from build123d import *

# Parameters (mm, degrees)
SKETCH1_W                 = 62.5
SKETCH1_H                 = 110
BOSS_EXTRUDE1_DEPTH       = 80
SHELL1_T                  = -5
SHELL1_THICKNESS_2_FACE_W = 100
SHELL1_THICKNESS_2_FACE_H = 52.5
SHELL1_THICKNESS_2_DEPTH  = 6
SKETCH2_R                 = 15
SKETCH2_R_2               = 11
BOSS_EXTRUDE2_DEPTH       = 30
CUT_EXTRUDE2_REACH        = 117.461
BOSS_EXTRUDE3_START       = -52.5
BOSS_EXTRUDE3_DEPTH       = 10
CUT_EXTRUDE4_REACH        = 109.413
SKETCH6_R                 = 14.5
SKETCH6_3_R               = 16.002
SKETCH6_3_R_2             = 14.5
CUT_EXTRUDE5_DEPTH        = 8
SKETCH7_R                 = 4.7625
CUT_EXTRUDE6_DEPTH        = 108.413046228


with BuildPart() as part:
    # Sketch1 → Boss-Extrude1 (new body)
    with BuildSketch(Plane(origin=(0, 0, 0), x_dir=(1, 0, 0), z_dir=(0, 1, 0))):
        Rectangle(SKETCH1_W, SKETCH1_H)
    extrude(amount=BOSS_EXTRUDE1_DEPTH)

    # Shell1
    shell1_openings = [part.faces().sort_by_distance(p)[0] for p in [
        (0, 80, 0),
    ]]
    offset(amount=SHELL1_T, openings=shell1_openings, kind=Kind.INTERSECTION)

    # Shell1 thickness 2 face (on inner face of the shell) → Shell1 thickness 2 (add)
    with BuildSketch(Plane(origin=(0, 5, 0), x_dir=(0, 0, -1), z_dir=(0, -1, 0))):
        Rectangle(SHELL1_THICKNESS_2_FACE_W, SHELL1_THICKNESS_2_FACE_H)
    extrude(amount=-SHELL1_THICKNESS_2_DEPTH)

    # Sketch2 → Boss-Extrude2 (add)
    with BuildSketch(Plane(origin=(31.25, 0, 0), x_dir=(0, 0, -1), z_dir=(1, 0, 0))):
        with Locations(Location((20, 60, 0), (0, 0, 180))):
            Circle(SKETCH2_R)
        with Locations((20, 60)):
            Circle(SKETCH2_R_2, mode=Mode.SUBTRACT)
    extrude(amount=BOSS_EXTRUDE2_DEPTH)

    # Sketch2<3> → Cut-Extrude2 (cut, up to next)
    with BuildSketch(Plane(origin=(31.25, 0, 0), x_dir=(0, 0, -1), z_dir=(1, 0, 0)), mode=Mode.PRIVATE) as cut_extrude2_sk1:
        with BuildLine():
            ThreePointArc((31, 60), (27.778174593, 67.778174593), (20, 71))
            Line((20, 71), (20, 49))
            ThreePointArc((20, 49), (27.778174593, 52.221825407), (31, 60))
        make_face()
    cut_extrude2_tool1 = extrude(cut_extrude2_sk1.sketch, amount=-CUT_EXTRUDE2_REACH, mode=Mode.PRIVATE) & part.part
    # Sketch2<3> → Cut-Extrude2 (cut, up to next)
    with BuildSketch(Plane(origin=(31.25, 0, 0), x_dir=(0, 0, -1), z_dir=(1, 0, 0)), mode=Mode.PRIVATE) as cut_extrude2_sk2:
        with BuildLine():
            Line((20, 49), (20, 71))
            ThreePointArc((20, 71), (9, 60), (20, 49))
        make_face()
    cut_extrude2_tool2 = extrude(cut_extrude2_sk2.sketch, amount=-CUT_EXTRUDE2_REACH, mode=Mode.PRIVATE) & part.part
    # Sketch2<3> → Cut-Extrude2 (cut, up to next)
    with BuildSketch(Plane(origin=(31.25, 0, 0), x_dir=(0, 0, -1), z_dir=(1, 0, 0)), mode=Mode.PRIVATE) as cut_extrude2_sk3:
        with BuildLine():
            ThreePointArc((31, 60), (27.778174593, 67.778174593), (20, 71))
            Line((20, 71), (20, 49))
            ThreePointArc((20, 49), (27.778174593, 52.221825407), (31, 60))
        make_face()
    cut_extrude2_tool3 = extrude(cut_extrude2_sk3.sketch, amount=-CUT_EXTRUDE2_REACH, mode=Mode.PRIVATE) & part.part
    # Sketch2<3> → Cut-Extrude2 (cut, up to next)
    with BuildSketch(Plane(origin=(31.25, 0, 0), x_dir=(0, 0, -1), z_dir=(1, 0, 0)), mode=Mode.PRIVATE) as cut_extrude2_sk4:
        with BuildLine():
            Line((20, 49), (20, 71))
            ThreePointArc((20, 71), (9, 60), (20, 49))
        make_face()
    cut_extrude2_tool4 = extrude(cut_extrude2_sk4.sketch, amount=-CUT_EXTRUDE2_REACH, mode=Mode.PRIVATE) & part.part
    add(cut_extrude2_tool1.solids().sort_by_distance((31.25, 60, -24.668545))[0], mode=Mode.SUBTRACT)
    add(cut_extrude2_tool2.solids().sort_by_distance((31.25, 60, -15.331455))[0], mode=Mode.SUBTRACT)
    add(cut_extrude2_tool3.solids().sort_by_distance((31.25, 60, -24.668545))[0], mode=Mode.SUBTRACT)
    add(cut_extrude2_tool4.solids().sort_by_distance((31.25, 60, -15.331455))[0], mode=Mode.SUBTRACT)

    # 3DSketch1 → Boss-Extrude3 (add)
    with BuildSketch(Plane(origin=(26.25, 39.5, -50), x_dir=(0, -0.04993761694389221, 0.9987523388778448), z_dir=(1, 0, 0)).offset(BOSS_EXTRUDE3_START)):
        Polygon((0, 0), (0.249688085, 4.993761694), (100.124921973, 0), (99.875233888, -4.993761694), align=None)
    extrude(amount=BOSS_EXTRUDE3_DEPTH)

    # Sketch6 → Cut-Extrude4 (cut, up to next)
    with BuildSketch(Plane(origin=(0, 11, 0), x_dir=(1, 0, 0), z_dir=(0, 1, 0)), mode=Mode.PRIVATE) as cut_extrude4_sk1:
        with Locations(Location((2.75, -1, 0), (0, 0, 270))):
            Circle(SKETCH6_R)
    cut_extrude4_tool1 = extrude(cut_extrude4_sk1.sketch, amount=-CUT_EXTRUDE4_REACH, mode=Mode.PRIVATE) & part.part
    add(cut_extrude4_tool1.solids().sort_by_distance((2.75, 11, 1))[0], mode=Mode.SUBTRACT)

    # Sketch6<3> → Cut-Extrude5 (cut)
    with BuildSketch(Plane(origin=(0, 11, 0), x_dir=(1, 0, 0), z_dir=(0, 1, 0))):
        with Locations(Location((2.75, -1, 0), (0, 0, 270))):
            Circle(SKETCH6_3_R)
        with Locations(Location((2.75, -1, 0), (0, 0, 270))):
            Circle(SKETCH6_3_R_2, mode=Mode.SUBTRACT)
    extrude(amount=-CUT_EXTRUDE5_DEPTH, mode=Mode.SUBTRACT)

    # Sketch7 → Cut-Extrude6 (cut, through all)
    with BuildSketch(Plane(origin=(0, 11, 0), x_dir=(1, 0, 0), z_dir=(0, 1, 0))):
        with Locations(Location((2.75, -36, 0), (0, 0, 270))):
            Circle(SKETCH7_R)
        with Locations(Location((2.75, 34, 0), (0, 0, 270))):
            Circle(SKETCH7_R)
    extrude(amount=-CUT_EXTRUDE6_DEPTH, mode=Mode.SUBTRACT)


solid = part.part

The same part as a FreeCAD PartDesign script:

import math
import FreeCAD as App
import Part
import Sketcher

V = App.Vector


def faces_at(feature, points):
    """Names of the faces that lie closest to the given points."""
    faces = feature.Shape.Faces
    near = lambda p: min(range(len(faces)), key=lambda i: faces[i].distToShape(Part.Vertex(*p))[0])
    return sorted({f"Face{near(p) + 1}" for p in points})


def add_polygon(sketch, points):
    """Adds a closed chain of lines whose ends are joined by coincident constraints."""
    first, n = sketch.GeometryCount, len(points)
    for a, b in zip(points, points[1:] + points[:1]):
        sketch.addGeometry(Part.LineSegment(App.Vector(*a, 0), App.Vector(*b, 0)), False)
    for i in range(n):
        sketch.addConstraint(Sketcher.Constraint("Coincident", first + i, 2, first + (i + 1) % n, 1))

doc = App.newDocument("Part")
body = doc.addObject("PartDesign::Body", "Body")

# Sketch on XZ plane
sketch1 = body.newObject("Sketcher::SketchObject", "Sketch")
sketch1.AttachmentSupport = (doc.getObject("XZ_Plane"), [""])
sketch1.MapMode = "FlatFace"
add_polygon(sketch1, [(-31, -55), (-31, 55), (31, 55), (31, -55)])  # lines 0-3
sketch1.addConstraint([
    Sketcher.Constraint("Vertical", 0),
    Sketcher.Constraint("Horizontal", 1),
    Sketcher.Constraint("Vertical", 2),
    Sketcher.Constraint("Horizontal", 3),
    Sketcher.Constraint("Symmetric", 0, 2, 2, 2, -1, 1),
    Sketcher.Constraint("DistanceY", 0, 1, 0, 2, 110.0),
    Sketcher.Constraint("DistanceX", 1, 1, 1, 2, 62.5),
])
pad1 = body.newObject("PartDesign::Pad", "Pad")
pad1.Profile = sketch1
pad1.Length = 80
pad1.Reversed = True
doc.recompute()

thickness = body.newObject("PartDesign::Thickness", "Thickness")
thickness.Base = (pad1, faces_at(pad1, [(0, 80, 0)]))
thickness.Value = 5
thickness.Reversed = True
thickness.Join = "Intersection"

# Sketch on XZ plane
sketch2 = body.newObject("Sketcher::SketchObject", "Sketch001")
sketch2.AttachmentSupport = (doc.getObject("XZ_Plane"), [""])
sketch2.MapMode = "FlatFace"
sketch2.AttachmentOffset = App.Placement(V(0, 0, -5), App.Rotation())
add_polygon(sketch2, [(26, 50), (-26, 50), (-26, -50), (26, -50)])  # lines 0-3
sketch2.addConstraint([
    Sketcher.Constraint("Horizontal", 0),
    Sketcher.Constraint("Vertical", 1),
    Sketcher.Constraint("Horizontal", 2),
    Sketcher.Constraint("Vertical", 3),
    Sketcher.Constraint("Symmetric", 0, 2, 2, 2, -1, 1),
    Sketcher.Constraint("DistanceY", 1, 2, 1, 1, 100.0),
    Sketcher.Constraint("DistanceX", 0, 2, 0, 1, 52.5),
])
pad2 = body.newObject("PartDesign::Pad", "Pad001")
pad2.Profile = sketch2
pad2.Length = 6
pad2.Reversed = True

# Sketch on YZ plane
sketch3 = body.newObject("Sketcher::SketchObject", "Sketch002")
sketch3.AttachmentSupport = (doc.getObject("YZ_Plane"), [""])
sketch3.MapMode = "FlatFace"
sketch3.AttachmentOffset = App.Placement(V(0, 0, 31.25), App.Rotation())
sketch3.addGeometry([
    Part.Circle(V(60, -20, 0), V(0, 0, 1), 15),
    Part.Circle(V(60, -20, 0), V(0, 0, 1), 11),
], False)
sketch3.addConstraint([
    Sketcher.Constraint("Coincident", 1, 3, 0, 3),
    Sketcher.Constraint("Diameter", 0, 30.0),
    Sketcher.Constraint("Diameter", 1, 22.0),
    Sketcher.Constraint("DistanceX", -1, 1, 0, 3, 60.0),
    Sketcher.Constraint("DistanceY", 0, 3, -1, 1, 20.0),
])
pad3 = body.newObject("PartDesign::Pad", "Pad002")
pad3.Profile = sketch3
pad3.Length = 30

# Sketch on YZ plane
sketch4 = body.newObject("Sketcher::SketchObject", "Sketch003")
sketch4.AttachmentSupport = (doc.getObject("YZ_Plane"), [""])
sketch4.MapMode = "FlatFace"
sketch4.AttachmentOffset = App.Placement(V(0, 0, 31.25), App.Rotation())
sketch4.addGeometry([
    Part.ArcOfCircle(Part.Circle(V(60, -20, 0), V(0, 0, 1), 11), math.radians(-90), math.radians(0)),
    Part.LineSegment(V(71, -20, 0), V(49, -20, 0)),
    Part.ArcOfCircle(Part.Circle(V(60, -20, 0), V(0, 0, 1), 11), math.radians(180), math.radians(270)),
], False)
sketch4.addConstraint([
    Sketcher.Constraint("Coincident", 0, 2, 1, 1),
    Sketcher.Constraint("Coincident", 1, 2, 2, 1),
    Sketcher.Constraint("Tangent", 2, 2, 0, 1),
    Sketcher.Constraint("Horizontal", 1),
    Sketcher.Constraint("Equal", 0, 2),
    Sketcher.Constraint("Horizontal", 2, 3, 0, 2),
    Sketcher.Constraint("Vertical", 0, 3, 2, 2),
    Sketcher.Constraint("Radius", 0, 11.0),
    Sketcher.Constraint("DistanceX", -1, 1, 0, 3, 60.0),
    Sketcher.Constraint("DistanceY", 0, 3, -1, 1, 20.0),
])
pocket1 = body.newObject("PartDesign::Pocket", "Pocket")
pocket1.Profile = sketch4
pocket1.Type = "UpToFirst"

# Sketch on YZ plane
sketch5 = body.newObject("Sketcher::SketchObject", "Sketch004")
sketch5.AttachmentSupport = (doc.getObject("YZ_Plane"), [""])
sketch5.MapMode = "FlatFace"
sketch5.AttachmentOffset = App.Placement(V(0, 0, 31.25), App.Rotation())
sketch5.addGeometry([
    Part.LineSegment(V(49, -20, 0), V(71, -20, 0)),
    Part.ArcOfCircle(Part.Circle(V(60, -20, 0), V(0, 0, 1), 11), math.radians(0), math.radians(180)),
], False)
sketch5.addConstraint([
    Sketcher.Constraint("Coincident", 0, 1, 1, 2),
    Sketcher.Constraint("Coincident", 1, 1, 0, 2),
    Sketcher.Constraint("Horizontal", 0),
    Sketcher.Constraint("Horizontal", 1, 3, 0, 1),
    Sketcher.Constraint("Radius", 1, 11.0),
    Sketcher.Constraint("DistanceX", -1, 1, 1, 3, 60.0),
    Sketcher.Constraint("DistanceY", 1, 3, -1, 1, 20.0),
])
pocket2 = body.newObject("PartDesign::Pocket", "Pocket001")
pocket2.Profile = sketch5
pocket2.Type = "UpToFirst"

# Sketch on YZ plane
sketch6 = body.newObject("Sketcher::SketchObject", "Sketch005")
sketch6.AttachmentSupport = (doc.getObject("YZ_Plane"), [""])
sketch6.MapMode = "FlatFace"
sketch6.AttachmentOffset = App.Placement(V(0, 0, 31.25), App.Rotation())
sketch6.addGeometry([
    Part.ArcOfCircle(Part.Circle(V(60, -20, 0), V(0, 0, 1), 11), math.radians(-90), math.radians(0)),
    Part.LineSegment(V(71, -20, 0), V(49, -20, 0)),
    Part.ArcOfCircle(Part.Circle(V(60, -20, 0), V(0, 0, 1), 11), math.radians(180), math.radians(270)),
], False)
sketch6.addConstraint([
    Sketcher.Constraint("Coincident", 0, 2, 1, 1),
    Sketcher.Constraint("Coincident", 1, 2, 2, 1),
    Sketcher.Constraint("Tangent", 2, 2, 0, 1),
    Sketcher.Constraint("Horizontal", 1),
    Sketcher.Constraint("Equal", 0, 2),
    Sketcher.Constraint("Horizontal", 2, 3, 0, 2),
    Sketcher.Constraint("Vertical", 0, 3, 2, 2),
    Sketcher.Constraint("Radius", 0, 11.0),
    Sketcher.Constraint("DistanceX", -1, 1, 0, 3, 60.0),
    Sketcher.Constraint("DistanceY", 0, 3, -1, 1, 20.0),
])
pocket3 = body.newObject("PartDesign::Pocket", "Pocket002")
pocket3.Profile = sketch6
pocket3.Type = "UpToFirst"

# Sketch on YZ plane
sketch7 = body.newObject("Sketcher::SketchObject", "Sketch006")
sketch7.AttachmentSupport = (doc.getObject("YZ_Plane"), [""])
sketch7.MapMode = "FlatFace"
sketch7.AttachmentOffset = App.Placement(V(0, 0, 31.25), App.Rotation())
sketch7.addGeometry([
    Part.LineSegment(V(49, -20, 0), V(71, -20, 0)),
    Part.ArcOfCircle(Part.Circle(V(60, -20, 0), V(0, 0, 1), 11), math.radians(0), math.radians(180)),
], False)
sketch7.addConstraint([
    Sketcher.Constraint("Coincident", 0, 1, 1, 2),
    Sketcher.Constraint("Coincident", 1, 1, 0, 2),
    Sketcher.Constraint("Horizontal", 0),
    Sketcher.Constraint("Horizontal", 1, 3, 0, 1),
    Sketcher.Constraint("Radius", 1, 11.0),
    Sketcher.Constraint("DistanceX", -1, 1, 1, 3, 60.0),
    Sketcher.Constraint("DistanceY", 1, 3, -1, 1, 20.0),
])
pocket4 = body.newObject("PartDesign::Pocket", "Pocket003")
pocket4.Profile = sketch7
pocket4.Type = "UpToFirst"

# Sketch on YZ plane
sketch8 = body.newObject("Sketcher::SketchObject", "Sketch007")
sketch8.AttachmentSupport = (doc.getObject("YZ_Plane"), [""])
sketch8.MapMode = "FlatFace"
sketch8.AttachmentOffset = App.Placement(V(0, 0, -26.25), App.Rotation())
add_polygon(sketch8, [(34, -50), (40, -50), (39, 50), (34, 50)])  # lines 0-3
sketch8.addConstraint([
    Sketcher.Constraint("Horizontal", 0),
    Sketcher.Constraint("Vertical", 1),
    Sketcher.Constraint("Horizontal", 2),
    Sketcher.Constraint("Vertical", 3),
    Sketcher.Constraint("DistanceX", 0, 1, 0, 2, 5.0),
    Sketcher.Constraint("DistanceY", 1, 1, 1, 2, 100.0),
    Sketcher.Constraint("DistanceY", 0, 2, -1, 1, 50.0),
    Sketcher.Constraint("DistanceX", -1, 1, 0, 2, 39.5),
])
pad4 = body.newObject("PartDesign::Pad", "Pad003")
pad4.Profile = sketch8
pad4.Length = 10

# Sketch on XZ plane
sketch9 = body.newObject("Sketcher::SketchObject", "Sketch008")
sketch9.AttachmentSupport = (doc.getObject("XZ_Plane"), [""])
sketch9.MapMode = "FlatFace"
sketch9.AttachmentOffset = App.Placement(V(0, 0, -11), App.Rotation())
sketch9.addGeometry(Part.Circle(V(3, 1, 0), V(0, 0, 1), 14), False)
sketch9.addConstraint([
    Sketcher.Constraint("Diameter", 0, 29.0),
    Sketcher.Constraint("DistanceY", -1, 1, 0, 3, 1.0),
    Sketcher.Constraint("DistanceX", -1, 1, 0, 3, 2.75),
])
pocket5 = body.newObject("PartDesign::Pocket", "Pocket004")
pocket5.Profile = sketch9
pocket5.Type = "UpToFirst"
pocket5.Reversed = True

# Sketch on XZ plane
sketch10 = body.newObject("Sketcher::SketchObject", "Sketch009")
sketch10.AttachmentSupport = (doc.getObject("XZ_Plane"), [""])
sketch10.MapMode = "FlatFace"
sketch10.AttachmentOffset = App.Placement(V(0, 0, -11), App.Rotation())
sketch10.addGeometry([
    Part.Circle(V(3, 1, 0), V(0, 0, 1), 16),
    Part.Circle(V(3, 1, 0), V(0, 0, 1), 14),
], False)
sketch10.addConstraint([
    Sketcher.Constraint("Coincident", 1, 3, 0, 3),
    Sketcher.Constraint("Diameter", 1, 29.0),
    Sketcher.Constraint("Diameter", 0, 32.004),
    Sketcher.Constraint("DistanceY", -1, 1, 0, 3, 1.0),
    Sketcher.Constraint("DistanceX", -1, 1, 0, 3, 2.75),
])
pocket6 = body.newObject("PartDesign::Pocket", "Pocket005")
pocket6.Profile = sketch10
pocket6.Length = 8
pocket6.Reversed = True

# Sketch on XZ plane
sketch11 = body.newObject("Sketcher::SketchObject", "Sketch010")
sketch11.AttachmentSupport = (doc.getObject("XZ_Plane"), [""])
sketch11.MapMode = "FlatFace"
sketch11.AttachmentOffset = App.Placement(V(0, 0, -11), App.Rotation())
sketch11.addGeometry([
    Part.Circle(V(2.8, 36, 0), V(0, 0, 1), 4.8),
    Part.Circle(V(2.8, -34, 0), V(0, 0, 1), 4.8),
], False)
sketch11.addConstraint([
    Sketcher.Constraint("Equal", 0, 1),
    Sketcher.Constraint("Vertical", 0, 3, 1, 3),
    Sketcher.Constraint("Diameter", 0, 9.525),
    Sketcher.Constraint("DistanceY", -1, 1, 0, 3, 36.0),
    Sketcher.Constraint("DistanceY", 1, 3, -1, 1, 34.0),
    Sketcher.Constraint("DistanceX", -1, 1, 0, 3, 2.75),
])
pocket7 = body.newObject("PartDesign::Pocket", "Pocket006")
pocket7.Profile = sketch11
pocket7.Type = "ThroughAll"
pocket7.Reversed = True

doc.recompute()
